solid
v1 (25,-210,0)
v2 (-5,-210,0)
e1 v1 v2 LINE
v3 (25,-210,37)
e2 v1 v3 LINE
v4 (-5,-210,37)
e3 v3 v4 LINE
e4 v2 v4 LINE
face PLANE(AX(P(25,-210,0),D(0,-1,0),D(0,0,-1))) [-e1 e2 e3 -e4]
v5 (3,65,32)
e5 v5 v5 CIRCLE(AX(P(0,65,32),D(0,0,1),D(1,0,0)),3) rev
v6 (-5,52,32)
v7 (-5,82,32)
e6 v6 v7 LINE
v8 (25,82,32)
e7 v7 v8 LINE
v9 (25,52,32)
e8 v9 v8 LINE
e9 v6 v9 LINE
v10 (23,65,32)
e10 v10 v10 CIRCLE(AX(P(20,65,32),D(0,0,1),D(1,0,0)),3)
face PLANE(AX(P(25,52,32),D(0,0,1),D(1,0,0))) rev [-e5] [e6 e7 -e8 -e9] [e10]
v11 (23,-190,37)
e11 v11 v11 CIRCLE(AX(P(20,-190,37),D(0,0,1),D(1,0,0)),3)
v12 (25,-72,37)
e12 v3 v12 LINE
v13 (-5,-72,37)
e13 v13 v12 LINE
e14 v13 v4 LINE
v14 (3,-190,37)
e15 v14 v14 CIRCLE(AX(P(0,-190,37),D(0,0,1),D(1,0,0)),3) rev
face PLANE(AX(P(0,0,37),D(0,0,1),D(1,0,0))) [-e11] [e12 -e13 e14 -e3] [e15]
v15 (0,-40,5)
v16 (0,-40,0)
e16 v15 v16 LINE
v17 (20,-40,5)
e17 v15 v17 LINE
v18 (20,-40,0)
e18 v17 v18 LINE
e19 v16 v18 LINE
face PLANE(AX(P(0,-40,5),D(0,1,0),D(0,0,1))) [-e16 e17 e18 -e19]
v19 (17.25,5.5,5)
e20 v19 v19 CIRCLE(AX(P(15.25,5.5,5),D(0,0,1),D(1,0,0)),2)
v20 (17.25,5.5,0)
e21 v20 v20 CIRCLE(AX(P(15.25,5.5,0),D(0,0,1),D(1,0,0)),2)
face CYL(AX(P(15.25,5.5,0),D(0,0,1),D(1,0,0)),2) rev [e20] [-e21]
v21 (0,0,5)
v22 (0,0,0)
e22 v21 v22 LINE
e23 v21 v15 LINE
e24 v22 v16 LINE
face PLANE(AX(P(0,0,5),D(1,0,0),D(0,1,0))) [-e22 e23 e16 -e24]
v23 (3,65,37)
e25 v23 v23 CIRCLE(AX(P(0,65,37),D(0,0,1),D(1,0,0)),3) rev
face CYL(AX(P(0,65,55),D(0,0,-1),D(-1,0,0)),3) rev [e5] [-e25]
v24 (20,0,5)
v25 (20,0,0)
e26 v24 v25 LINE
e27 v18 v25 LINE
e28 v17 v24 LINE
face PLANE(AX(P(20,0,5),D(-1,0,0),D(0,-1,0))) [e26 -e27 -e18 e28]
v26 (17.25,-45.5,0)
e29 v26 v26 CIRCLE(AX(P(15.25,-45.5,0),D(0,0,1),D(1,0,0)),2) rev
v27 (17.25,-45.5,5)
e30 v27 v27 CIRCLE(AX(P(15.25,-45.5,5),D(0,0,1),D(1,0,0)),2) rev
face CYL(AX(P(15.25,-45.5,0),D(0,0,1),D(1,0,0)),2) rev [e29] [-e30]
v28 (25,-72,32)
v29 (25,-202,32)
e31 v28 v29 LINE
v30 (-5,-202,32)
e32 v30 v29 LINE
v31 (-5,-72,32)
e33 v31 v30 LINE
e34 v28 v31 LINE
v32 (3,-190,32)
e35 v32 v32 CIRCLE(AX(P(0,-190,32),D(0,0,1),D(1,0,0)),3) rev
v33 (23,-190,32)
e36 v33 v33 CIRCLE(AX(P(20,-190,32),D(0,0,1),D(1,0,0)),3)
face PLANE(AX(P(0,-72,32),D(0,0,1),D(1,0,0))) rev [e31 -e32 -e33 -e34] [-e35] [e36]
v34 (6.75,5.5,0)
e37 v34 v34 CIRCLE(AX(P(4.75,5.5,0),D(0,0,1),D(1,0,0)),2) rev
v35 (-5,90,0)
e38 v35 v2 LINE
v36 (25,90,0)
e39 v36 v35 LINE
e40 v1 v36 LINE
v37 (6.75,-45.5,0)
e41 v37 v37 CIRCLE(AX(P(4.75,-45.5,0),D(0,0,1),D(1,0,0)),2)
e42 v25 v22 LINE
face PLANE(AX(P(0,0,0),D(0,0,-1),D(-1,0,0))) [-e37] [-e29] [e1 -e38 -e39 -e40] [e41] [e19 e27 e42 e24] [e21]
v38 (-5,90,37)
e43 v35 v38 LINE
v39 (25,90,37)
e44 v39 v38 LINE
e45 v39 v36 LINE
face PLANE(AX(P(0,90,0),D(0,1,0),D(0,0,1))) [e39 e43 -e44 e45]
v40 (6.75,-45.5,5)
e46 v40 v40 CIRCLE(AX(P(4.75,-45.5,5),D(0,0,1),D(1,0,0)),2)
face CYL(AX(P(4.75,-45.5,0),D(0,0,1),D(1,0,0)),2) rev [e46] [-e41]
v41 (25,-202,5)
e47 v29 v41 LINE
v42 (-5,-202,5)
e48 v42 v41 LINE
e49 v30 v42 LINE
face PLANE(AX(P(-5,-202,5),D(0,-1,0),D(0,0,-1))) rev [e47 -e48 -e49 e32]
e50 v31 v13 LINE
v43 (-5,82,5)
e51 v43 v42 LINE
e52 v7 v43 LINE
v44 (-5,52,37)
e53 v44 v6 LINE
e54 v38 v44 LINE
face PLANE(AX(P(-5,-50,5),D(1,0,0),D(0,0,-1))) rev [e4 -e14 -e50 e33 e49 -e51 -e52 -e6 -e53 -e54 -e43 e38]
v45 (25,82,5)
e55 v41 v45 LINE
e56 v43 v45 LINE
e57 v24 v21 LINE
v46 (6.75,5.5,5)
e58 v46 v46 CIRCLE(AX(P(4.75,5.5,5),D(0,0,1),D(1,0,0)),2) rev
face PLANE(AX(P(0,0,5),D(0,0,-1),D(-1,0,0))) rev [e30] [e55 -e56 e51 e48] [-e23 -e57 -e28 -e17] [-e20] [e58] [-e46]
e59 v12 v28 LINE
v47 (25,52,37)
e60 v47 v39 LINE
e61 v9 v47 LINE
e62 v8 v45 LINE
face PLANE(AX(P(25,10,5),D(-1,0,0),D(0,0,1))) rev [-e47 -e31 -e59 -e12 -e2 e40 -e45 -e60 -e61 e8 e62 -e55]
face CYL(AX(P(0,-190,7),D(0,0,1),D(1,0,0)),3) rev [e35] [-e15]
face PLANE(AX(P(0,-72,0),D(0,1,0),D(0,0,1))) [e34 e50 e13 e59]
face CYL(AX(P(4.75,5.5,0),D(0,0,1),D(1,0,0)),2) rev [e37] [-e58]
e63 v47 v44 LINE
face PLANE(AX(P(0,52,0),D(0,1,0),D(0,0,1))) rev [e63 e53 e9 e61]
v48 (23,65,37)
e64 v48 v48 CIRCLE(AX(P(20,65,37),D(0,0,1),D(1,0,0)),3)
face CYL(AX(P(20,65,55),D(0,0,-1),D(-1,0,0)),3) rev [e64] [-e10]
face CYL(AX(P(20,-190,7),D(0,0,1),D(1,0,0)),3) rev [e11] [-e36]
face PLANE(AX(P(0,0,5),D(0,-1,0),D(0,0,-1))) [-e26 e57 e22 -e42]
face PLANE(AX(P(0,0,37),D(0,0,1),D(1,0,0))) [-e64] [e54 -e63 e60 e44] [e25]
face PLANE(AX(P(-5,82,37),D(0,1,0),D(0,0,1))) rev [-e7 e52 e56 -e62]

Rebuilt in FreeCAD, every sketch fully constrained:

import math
import FreeCAD as App
import Part
import Sketcher
from FreeCAD import Vector
Q = App.Units.Quantity


def add_polygon(sketch, points):
    """Adds a closed chain of lines whose ends are joined by coincident constraints."""
    first, n = sketch.GeometryCount, len(points)
    for a, b in zip(points, points[1:] + points[:1]):
        sketch.addGeometry(Part.LineSegment(App.Vector(*a, 0), App.Vector(*b, 0)), False)
    for i in range(n):
        sketch.addConstraint(Sketcher.Constraint("Coincident", first + i, 2, first + (i + 1) % n, 1))

doc = App.newDocument("Part")
body = doc.addObject("PartDesign::Body", "Body")

# Sketch on XY plane
sketch1 = body.newObject("Sketcher::SketchObject", "Sketch")
sketch1.AttachmentSupport = (doc.getObject("XY_Plane"), [""])
sketch1.MapMode = "FlatFace"
add_polygon(sketch1, [(-5, 10), (-5, -50), (25, -50), (25, 10)])  # lines 0-3
add_polygon(sketch1, [(20, -40), (0, -40), (0, 0), (20, 0)])  # lines 4-7
sketch1.addConstraint([
    Sketcher.Constraint("Vertical", 0),
    Sketcher.Constraint("Horizontal", 1),
    Sketcher.Constraint("Vertical", 2),
    Sketcher.Constraint("Horizontal", 3),
    Sketcher.Constraint("Horizontal", 4),
    Sketcher.Constraint("Vertical", 5),
    Sketcher.Constraint("Horizontal", 6),
    Sketcher.Constraint("Vertical", 7),
    Sketcher.Constraint("Coincident", 5, 2, -1, 1),
    Sketcher.Constraint("DistanceX", 1, 1, 1, 2, Q("30 mm")),
    Sketcher.Constraint("DistanceX", 4, 2, 4, 1, Q("20 mm")),
    Sketcher.Constraint("DistanceY", 0, 2, 0, 1, Q("60 mm")),
    Sketcher.Constraint("DistanceY", 5, 1, 5, 2, Q("40 mm")),
    Sketcher.Constraint("DistanceX", 0, 2, -1, 1, Q("5 mm")),
    Sketcher.Constraint("DistanceY", 0, 2, -1, 1, Q("50 mm")),
])
pad1 = body.newObject("PartDesign::Pad", "Pad")
pad1.Profile = sketch1
pad1.Length = 5

# Sketch on XY plane
sketch2 = body.newObject("Sketcher::SketchObject", "Sketch001")
sketch2.AttachmentSupport = (doc.getObject("XY_Plane"), [""])
sketch2.MapMode = "FlatFace"
sketch2.AttachmentOffset = App.Placement(Vector(0, 0, 5), App.Rotation())
sketch2.addGeometry([
    Part.Circle(Vector(15.2, 5.5, 0), Vector(0, 0, 1), 2),
    Part.Circle(Vector(15.2, -45.5, 0), Vector(0, 0, 1), 2),
    Part.Circle(Vector(4.8, -45.5, 0), Vector(0, 0, 1), 2),
    Part.Circle(Vector(4.8, 5.5, 0), Vector(0, 0, 1), 2),
], False)
sketch2.addConstraint([
    Sketcher.Constraint("Equal", 0, 1),
    Sketcher.Constraint("Equal", 1, 2),
    Sketcher.Constraint("Equal", 2, 3),
    Sketcher.Constraint("Horizontal", 1, 3, 2, 3),
    Sketcher.Constraint("Horizontal", 0, 3, 3, 3),
    Sketcher.Constraint("Vertical", 0, 3, 1, 3),
    Sketcher.Constraint("Vertical", 2, 3, 3, 3),
    Sketcher.Constraint("Diameter", 0, Q("4 mm")),
    Sketcher.Constraint("DistanceY", 1, 3, 0, 3, Q("51 mm")),
    Sketcher.Constraint("DistanceY", -1, 1, 0, 3, Q("5.5 mm")),
    Sketcher.Constraint("DistanceX", 2, 3, 1, 3, Q("10.5 mm")),
    Sketcher.Constraint("DistanceX", -1, 1, 0, 3, Q("15.25 mm")),
])
pocket1 = body.newObject("PartDesign::Pocket", "Pocket")
pocket1.Profile = sketch2
pocket1.Length = 5

# Sketch on YZ plane
sketch3 = body.newObject("Sketcher::SketchObject", "Sketch002")
sketch3.AttachmentSupport = (doc.getObject("YZ_Plane"), [""])
sketch3.MapMode = "FlatFace"
sketch3.AttachmentOffset = App.Placement(Vector(0, 0, 25), App.Rotation())
sketch3.addGeometry([
    Part.LineSegment(Vector(-40, 5, 0), Vector(-42, 5, 0)),  # 0
    Part.ArcOfCircle(Part.Circle(Vector(-42, 8, 0), Vector(0, 0, 1), 3), math.radians(180), math.radians(270)),  # 1
    Part.LineSegment(Vector(-45, 8, 0), Vector(-45, 25, 0)),  # 2
    Part.LineSegment(Vector(-45, 25, 0), Vector(-50, 25, 0)),  # 3
    Part.LineSegment(Vector(-50, 25, 0), Vector(-50, -20, 0)),  # 4
    Part.LineSegment(Vector(-50, -20, 0), Vector(-45, -20, 0)),  # 5
    Part.LineSegment(Vector(-45, -20, 0), Vector(-45, -3, 0)),  # 6
    Part.ArcOfCircle(Part.Circle(Vector(-42, -3, 0), Vector(0, 0, 1), 3), math.radians(90), math.radians(180)),  # 7
    Part.LineSegment(Vector(-42, 0, 0), Vector(-40, 0, 0)),  # 8
    Part.LineSegment(Vector(-40, 0, 0), Vector(-40, 5, 0)),  # 9
], False)
sketch3.addConstraint([
    Sketcher.Constraint("Tangent", 0, 2, 1, 2),
    Sketcher.Constraint("Tangent", 1, 1, 2, 1),
    Sketcher.Constraint("Coincident", 2, 2, 3, 1),
    Sketcher.Constraint("Coincident", 3, 2, 4, 1),
    Sketcher.Constraint("Coincident", 4, 2, 5, 1),
    Sketcher.Constraint("Coincident", 5, 2, 6, 1),
    Sketcher.Constraint("Tangent", 6, 2, 7, 2),
    Sketcher.Constraint("Tangent", 7, 1, 8, 1),
    Sketcher.Constraint("Coincident", 8, 2, 9, 1),
    Sketcher.Constraint("Coincident", 9, 2, 0, 1),
    Sketcher.Constraint("Horizontal", 0),
    Sketcher.Constraint("Vertical", 2),
    Sketcher.Constraint("Horizontal", 3),
    Sketcher.Constraint("Vertical", 4),
    Sketcher.Constraint("Horizontal", 5),
    Sketcher.Constraint("Vertical", 6),
    Sketcher.Constraint("Horizontal", 8),
    Sketcher.Constraint("Vertical", 9),
    Sketcher.Constraint("Equal", 1, 7),
    Sketcher.Constraint("PointOnObject", 7, 1, -1),
    Sketcher.Constraint("Vertical", 1, 3, 7, 3),
    Sketcher.Constraint("Equal", 2, 6),
    Sketcher.Constraint("Equal", 5, 9),
    Sketcher.Constraint("Radius", 1, Q("3 mm")),
    Sketcher.Constraint("DistanceX", 0, 2, 0, 1, Q("2 mm")),
    Sketcher.Constraint("DistanceX", 3, 2, 3, 1, Q("5 mm")),
    Sketcher.Constraint("DistanceY", 2, 1, 2, 2, Q("17 mm")),
    Sketcher.Constraint("DistanceX", 1, 3, -1, 1, Q("42 mm")),
])
pad2 = body.newObject("PartDesign::Pad", "Pad001")
pad2.Profile = sketch3
pad2.Length = 5
doc.recompute()

datumplane = body.newObject("PartDesign::Plane", "DatumPlane")
datumplane.AttachmentSupport = (doc.getObject("YZ_Plane"), [""])
datumplane.MapMode = "FlatFace"
datumplane.AttachmentOffset = App.Placement(Vector(0, 0, 10), App.Rotation())
mirrored = body.newObject("PartDesign::Mirrored", "Mirrored")
mirrored.Originals = [pad2]
mirrored.MirrorPlane = (datumplane, [""])
body.Tip = mirrored

# Sketch on XZ plane
sketch4 = body.newObject("Sketcher::SketchObject", "Sketch003")
sketch4.AttachmentSupport = (doc.getObject("XZ_Plane"), [""])
sketch4.MapMode = "FlatFace"
sketch4.AttachmentOffset = App.Placement(Vector(0, 0, 45), App.Rotation())
sketch4.addGeometry([
    Part.Circle(Vector(-7.5, -12.5, 0), Vector(0, 0, 1), 1.5),
    Part.Circle(Vector(-7.5, 17.5, 0), Vector(0, 0, 1), 1.5),
    Part.Circle(Vector(27.5, 17.5, 0), Vector(0, 0, 1), 1.5),
    Part.Circle(Vector(27.5, -12.5, 0), Vector(0, 0, 1), 1.5),
], False)
sketch4.addConstraint([
    Sketcher.Constraint("Equal", 0, 1),
    Sketcher.Constraint("Equal", 1, 2),
    Sketcher.Constraint("Equal", 2, 3),
    Sketcher.Constraint("Horizontal", 1, 3, 2, 3),
    Sketcher.Constraint("Horizontal", 0, 3, 3, 3),
    Sketcher.Constraint("Vertical", 0, 3, 1, 3),
    Sketcher.Constraint("Vertical", 2, 3, 3, 3),
    Sketcher.Constraint("Diameter", 0, Q("3 mm")),
    Sketcher.Constraint("DistanceY", 0, 3, 1, 3, Q("30 mm")),
    Sketcher.Constraint("DistanceX", 1, 3, 2, 3, Q("35 mm")),
    Sketcher.Constraint("DistanceX", 0, 3, -1, 1, Q("7.5 mm")),
    Sketcher.Constraint("DistanceY", 0, 3, -1, 1, Q("12.5 mm")),
])
pocket2 = body.newObject("PartDesign::Pocket", "Pocket001")
pocket2.Profile = sketch4
pocket2.Length = 5
pocket2.Reversed = True

# Sketch on XY plane
sketch5 = body.newObject("Sketcher::SketchObject", "Sketch004")
sketch5.AttachmentSupport = (doc.getObject("XY_Plane"), [""])
sketch5.MapMode = "FlatFace"
sketch5.AttachmentOffset = App.Placement(Vector(0, 0, 25), App.Rotation())
add_polygon(sketch5, [(25, -40), (25, -50), (30, -50), (30, -40)])  # lines 0-3
add_polygon(sketch5, [(-10, -40), (-10, -50), (-5, -50), (-5, -40)])  # lines 4-7
sketch5.addConstraint([
    Sketcher.Constraint("Vertical", 0),
    Sketcher.Constraint("Horizontal", 1),
    Sketcher.Constraint("Vertical", 2),
    Sketcher.Constraint("Horizontal", 3),
    Sketcher.Constraint("Vertical", 4),
    Sketcher.Constraint("Horizontal", 5),
    Sketcher.Constraint("Vertical", 6),
    Sketcher.Constraint("Horizontal", 7),
    Sketcher.Constraint("Horizontal", 1, 2, 4, 2),
    Sketcher.Constraint("Horizontal", 3, 2, 6, 2),
    Sketcher.Constraint("Equal", 3, 5),
    Sketcher.Constraint("DistanceX", 1, 1, 1, 2, Q("5 mm")),
    Sketcher.Constraint("DistanceY", 0, 2, 0, 1, Q("10 mm")),
    Sketcher.Constraint("DistanceX", -1, 1, 0, 2, Q("25 mm")),
    Sketcher.Constraint("DistanceY", 0, 2, -1, 1, Q("50 mm")),
    Sketcher.Constraint("DistanceX", 4, 2, -1, 1, Q("10 mm")),
])
pocket3 = body.newObject("PartDesign::Pocket", "Pocket002")
pocket3.Profile = sketch5
pocket3.Length = 100

# Sketch on XZ plane
sketch6 = body.newObject("Sketcher::SketchObject", "Sketch005")
sketch6.AttachmentSupport = (doc.getObject("XZ_Plane"), [""])
sketch6.MapMode = "FlatFace"
sketch6.AttachmentOffset = App.Placement(Vector(0, 0, -10), App.Rotation())
add_polygon(sketch6, [(-5, 0), (-5, 5), (25, 5), (25, 0)])  # lines 0-3
sketch6.addConstraint([
    Sketcher.Constraint("Vertical", 0),
    Sketcher.Constraint("Horizontal", 1),
    Sketcher.Constraint("Vertical", 2),
    Sketcher.Constraint("Horizontal", 3),
    Sketcher.Constraint("PointOnObject", 2, 2, -1),
    Sketcher.Constraint("DistanceX", 1, 1, 1, 2, Q("30 mm")),
    Sketcher.Constraint("DistanceY", 0, 1, 0, 2, Q("5 mm")),
    Sketcher.Constraint("DistanceX", 0, 2, -1, 1, Q("5 mm")),
])
pad3 = body.newObject("PartDesign::Pad", "Pad002")
pad3.Profile = sketch6
pad3.Length = 80
pad3.Reversed = True

# Sketch on XZ plane
sketch7 = body.newObject("Sketcher::SketchObject", "Sketch006")
sketch7.AttachmentSupport = (doc.getObject("XZ_Plane"), [""])
sketch7.MapMode = "FlatFace"
sketch7.AttachmentOffset = App.Placement(Vector(0, 0, 50), App.Rotation())
add_polygon(sketch7, [(-5, 5), (-5, 0), (25, 0), (25, 5)])  # lines 0-3
sketch7.addConstraint([
    Sketcher.Constraint("Vertical", 0),
    Sketcher.Constraint("Horizontal", 1),
    Sketcher.Constraint("Vertical", 2),
    Sketcher.Constraint("Horizontal", 3),
    Sketcher.Constraint("PointOnObject", 0, 2, -1),
    Sketcher.Constraint("DistanceX", 1, 1, 1, 2, Q("30 mm")),
    Sketcher.Constraint("DistanceY", 0, 2, 0, 1, Q("5 mm")),
    Sketcher.Constraint("DistanceX", 0, 2, -1, 1, Q("5 mm")),
])
pad4 = body.newObject("PartDesign::Pad", "Pad003")
pad4.Profile = sketch7
pad4.Length = 60

# Sketch on XY plane
sketch8 = body.newObject("Sketcher::SketchObject", "Sketch007")
sketch8.AttachmentSupport = (doc.getObject("XY_Plane"), [""])
sketch8.MapMode = "FlatFace"
sketch8.AttachmentOffset = App.Placement(Vector(0, 0, 5), App.Rotation())
add_polygon(sketch8, [(-5, -102), (-5, -110), (25, -110), (25, -102)])  # lines 0-3
add_polygon(sketch8, [(-5, 90), (-5, 82), (25, 82), (25, 90)])  # lines 4-7
sketch8.addConstraint([
    Sketcher.Constraint("Vertical", 0),
    Sketcher.Constraint("Horizontal", 1),
    Sketcher.Constraint("Vertical", 2),
    Sketcher.Constraint("Horizontal", 3),
    Sketcher.Constraint("Vertical", 4),
    Sketcher.Constraint("Horizontal", 5),
    Sketcher.Constraint("Vertical", 6),
    Sketcher.Constraint("Horizontal", 7),
    Sketcher.Constraint("Vertical", 3, 2, 4, 2),
    Sketcher.Constraint("Vertical", 2, 2, 5, 2),
    Sketcher.Constraint("Equal", 2, 4),
    Sketcher.Constraint("DistanceX", 1, 1, 1, 2, Q("30 mm")),
    Sketcher.Constraint("DistanceY", 0, 2, 0, 1, Q("8 mm")),
    Sketcher.Constraint("DistanceX", 0, 2, -1, 1, Q("5 mm")),
    Sketcher.Constraint("DistanceY", 0, 2, -1, 1, Q("110 mm")),
    Sketcher.Constraint("DistanceY", -1, 1, 4, 2, Q("82 mm")),
])
pad5 = body.newObject("PartDesign::Pad", "Pad004")
pad5.Profile = sketch8
pad5.Length = 32

# Sketch on XZ plane
sketch9 = body.newObject("Sketcher::SketchObject", "Sketch008")
sketch9.AttachmentSupport = (doc.getObject("XZ_Plane"), [""])
sketch9.MapMode = "FlatFace"
sketch9.AttachmentOffset = App.Placement(Vector(0, 0, 102), App.Rotation())
add_polygon(sketch9, [(-5, 37), (25, 37), (25, 32), (-5, 32)])  # lines 0-3
sketch9.addConstraint([
    Sketcher.Constraint("Horizontal", 0),
    Sketcher.Constraint("Vertical", 1),
    Sketcher.Constraint("Horizontal", 2),
    Sketcher.Constraint("Vertical", 3),
    Sketcher.Constraint("DistanceX", 0, 1, 0, 2, Q("30 mm")),
    Sketcher.Constraint("DistanceY", 1, 2, 1, 1, Q("5 mm")),
    Sketcher.Constraint("DistanceX", -1, 1, 0, 2, Q("25 mm")),
    Sketcher.Constraint("DistanceY", -1, 1, 0, 2, Q("37 mm")),
])
pad6 = body.newObject("PartDesign::Pad", "Pad005")
pad6.Profile = sketch9
pad6.Length = 30
pad6.Reversed = True

# Sketch on XZ plane
sketch10 = body.newObject("Sketcher::SketchObject", "Sketch009")
sketch10.AttachmentSupport = (doc.getObject("XZ_Plane"), [""])
sketch10.MapMode = "FlatFace"
sketch10.AttachmentOffset = App.Placement(Vector(0, 0, -82), App.Rotation())
add_polygon(sketch10, [(-5, 37), (-5, 32), (25, 32), (25, 37)])  # lines 0-3
sketch10.addConstraint([
    Sketcher.Constraint("Vertical", 0),
    Sketcher.Constraint("Horizontal", 1),
    Sketcher.Constraint("Vertical", 2),
    Sketcher.Constraint("Horizontal", 3),
    Sketcher.Constraint("DistanceX", 1, 1, 1, 2, Q("30 mm")),
    Sketcher.Constraint("DistanceY", 0, 2, 0, 1, Q("5 mm")),
    Sketcher.Constraint("DistanceX", 0, 2, -1, 1, Q("5 mm")),
    Sketcher.Constraint("DistanceY", -1, 1, 0, 2, Q("32 mm")),
])
pad7 = body.newObject("PartDesign::Pad", "Pad006")
pad7.Profile = sketch10
pad7.Length = 30

# Sketch on YZ plane
sketch11 = body.newObject("Sketcher::SketchObject", "Sketch010")
sketch11.AttachmentSupport = (doc.getObject("YZ_Plane"), [""])
sketch11.MapMode = "FlatFace"
sketch11.AttachmentOffset = App.Placement(Vector(0, 0, -5), App.Rotation())
add_polygon(sketch11, [(-110, 0), (-210, 0), (-210, 37), (-110, 37)])  # lines 0-3
sketch11.addConstraint([
    Sketcher.Constraint("Horizontal", 0),
    Sketcher.Constraint("Vertical", 1),
    Sketcher.Constraint("Horizontal", 2),
    Sketcher.Constraint("Vertical", 3),
    Sketcher.Constraint("PointOnObject", 0, 2, -1),
    Sketcher.Constraint("DistanceX", 0, 2, 0, 1, Q("100 mm")),
    Sketcher.Constraint("DistanceY", 1, 1, 1, 2, Q("37 mm")),
    Sketcher.Constraint("DistanceX", 0, 2, -1, 1, Q("210 mm")),
])
pad8 = body.newObject("PartDesign::Pad", "Pad007")
pad8.Profile = sketch11
pad8.Length = 30

# Sketch on XY plane
sketch12 = body.newObject("Sketcher::SketchObject", "Sketch011")
sketch12.AttachmentSupport = (doc.getObject("XY_Plane"), [""])
sketch12.MapMode = "FlatFace"
sketch12.AttachmentOffset = App.Placement(Vector(0, 0, 5), App.Rotation())
sketch12.addGeometry([
    Part.Circle(Vector(0, 65, 0), Vector(0, 0, 1), 3),
    Part.Circle(Vector(20, 65, 0), Vector(0, 0, 1), 3),
], False)
sketch12.addConstraint([
    Sketcher.Constraint("Equal", 0, 1),
    Sketcher.Constraint("PointOnObject", 0, 3, -2),
    Sketcher.Constraint("Horizontal", 0, 3, 1, 3),
    Sketcher.Constraint("Diameter", 0, Q("6 mm")),
    Sketcher.Constraint("DistanceY", -1, 1, 0, 3, Q("65 mm")),
    Sketcher.Constraint("DistanceX", -1, 1, 1, 3, Q("20 mm")),
])
pocket4 = body.newObject("PartDesign::Pocket", "Pocket003")
pocket4.Profile = sketch12
pocket4.Length = 50
pocket4.Reversed = True

# Sketch on YZ plane
sketch13 = body.newObject("Sketcher::SketchObject", "Sketch012")
sketch13.AttachmentSupport = (doc.getObject("YZ_Plane"), [""])
sketch13.MapMode = "FlatFace"
sketch13.AttachmentOffset = App.Placement(Vector(0, 0, 25), App.Rotation())
add_polygon(sketch13, [(-102, 32), (-202, 32), (-202, 5), (-102, 5)])  # lines 0-3
sketch13.addConstraint([
    Sketcher.Constraint("Horizontal", 0),
    Sketcher.Constraint("Vertical", 1),
    Sketcher.Constraint("Horizontal", 2),
    Sketcher.Constraint("Vertical", 3),
    Sketcher.Constraint("DistanceX", 0, 2, 0, 1, Q("100 mm")),
    Sketcher.Constraint("DistanceY", 1, 2, 1, 1, Q("27 mm")),
    Sketcher.Constraint("DistanceX", 0, 2, -1, 1, Q("202 mm")),
    Sketcher.Constraint("DistanceY", -1, 1, 0, 2, Q("32 mm")),
])
pocket5 = body.newObject("PartDesign::Pocket", "Pocket004")
pocket5.Profile = sketch13
pocket5.Length = 30

# Sketch on XY plane
sketch14 = body.newObject("Sketcher::SketchObject", "Sketch013")
sketch14.AttachmentSupport = (doc.getObject("XY_Plane"), [""])
sketch14.MapMode = "FlatFace"
sketch14.AttachmentOffset = App.Placement(Vector(0, 0, 37), App.Rotation())
sketch14.addGeometry([
    Part.Circle(Vector(20, -190, 0), Vector(0, 0, 1), 3),
    Part.Circle(Vector(0, -190, 0), Vector(0, 0, 1), 3),
], False)
sketch14.addConstraint([
    Sketcher.Constraint("Equal", 0, 1),
    Sketcher.Constraint("PointOnObject", 1, 3, -2),
    Sketcher.Constraint("Horizontal", 0, 3, 1, 3),
    Sketcher.Constraint("Diameter", 0, Q("6 mm")),
    Sketcher.Constraint("DistanceX", -1, 1, 0, 3, Q("20 mm")),
    Sketcher.Constraint("DistanceY", 0, 3, -1, 1, Q("190 mm")),
])
pocket6 = body.newObject("PartDesign::Pocket", "Pocket005")
pocket6.Profile = sketch14
pocket6.Length = 30

doc.recompute()
